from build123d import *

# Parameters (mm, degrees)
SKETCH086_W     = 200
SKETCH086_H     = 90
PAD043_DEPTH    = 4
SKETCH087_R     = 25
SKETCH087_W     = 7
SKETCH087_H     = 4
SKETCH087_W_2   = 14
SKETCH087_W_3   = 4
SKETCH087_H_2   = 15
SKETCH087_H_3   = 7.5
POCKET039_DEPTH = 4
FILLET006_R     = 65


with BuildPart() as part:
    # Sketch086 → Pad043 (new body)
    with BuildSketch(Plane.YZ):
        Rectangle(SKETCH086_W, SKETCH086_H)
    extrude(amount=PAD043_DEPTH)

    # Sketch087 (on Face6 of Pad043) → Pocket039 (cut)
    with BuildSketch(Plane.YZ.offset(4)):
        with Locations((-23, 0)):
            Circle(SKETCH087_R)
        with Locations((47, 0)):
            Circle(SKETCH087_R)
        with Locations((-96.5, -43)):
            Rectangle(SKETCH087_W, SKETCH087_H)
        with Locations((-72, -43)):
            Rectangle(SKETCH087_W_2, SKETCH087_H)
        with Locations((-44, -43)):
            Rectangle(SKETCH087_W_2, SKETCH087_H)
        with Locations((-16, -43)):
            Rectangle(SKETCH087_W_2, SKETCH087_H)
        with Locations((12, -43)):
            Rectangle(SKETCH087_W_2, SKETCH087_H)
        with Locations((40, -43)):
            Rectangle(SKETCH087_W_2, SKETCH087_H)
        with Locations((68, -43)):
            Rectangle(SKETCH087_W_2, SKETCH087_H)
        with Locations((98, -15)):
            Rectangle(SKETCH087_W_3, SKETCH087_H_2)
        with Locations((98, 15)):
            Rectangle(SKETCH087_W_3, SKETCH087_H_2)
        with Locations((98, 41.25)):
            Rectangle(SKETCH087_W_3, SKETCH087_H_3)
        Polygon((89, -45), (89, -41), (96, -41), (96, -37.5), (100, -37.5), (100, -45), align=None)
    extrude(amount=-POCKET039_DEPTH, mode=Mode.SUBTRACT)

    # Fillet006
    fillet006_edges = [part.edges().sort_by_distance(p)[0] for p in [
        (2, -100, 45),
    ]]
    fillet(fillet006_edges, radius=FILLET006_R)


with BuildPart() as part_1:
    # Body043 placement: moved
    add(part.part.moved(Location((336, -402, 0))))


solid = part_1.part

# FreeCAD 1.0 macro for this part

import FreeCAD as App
import Part
import Sketcher


def edges_at(feature, points):
    """Names of the edges that pass closest to the given points."""
    edges = feature.Shape.Edges
    near = lambda p: min(range(len(edges)), key=lambda i: edges[i].distToShape(Part.Vertex(*p))[0])
    return sorted({f"Edge{near(p) + 1}" for p in points})


def add_polygon(sketch, points):
    """Adds a closed chain of lines whose ends are joined by coincident constraints."""
    first, n = sketch.GeometryCount, len(points)
    for a, b in zip(points, points[1:] + points[:1]):
        sketch.addGeometry(Part.LineSegment(App.Vector(*a, 0), App.Vector(*b, 0)), False)
    for i in range(n):
        sketch.addConstraint(Sketcher.Constraint("Coincident", first + i, 2, first + (i + 1) % n, 1))

doc = App.newDocument("Part")
body = doc.addObject("PartDesign::Body", "Body")

sketch1 = doc.addObject("Sketcher::SketchObject", "Sketch")
body.addObject(sketch1)
sketch1.AttachmentSupport = (doc.YZ_Plane, [""])
sketch1.MapMode = "FlatFace"
add_polygon(sketch1, [(-100, 45), (-100, -45), (100, -45), (100, 45)])
sketch1.addConstraint([
    Sketcher.Constraint("Vertical", 0),
    Sketcher.Constraint("Horizontal", 1),
    Sketcher.Constraint("Vertical", 2),
    Sketcher.Constraint("Horizontal", 3),
    Sketcher.Constraint("Symmetric", 0, 2, 2, 2, -1, 1),
    Sketcher.Constraint("DistanceX", 1, 1, 1, 2, 200.0),
    Sketcher.Constraint("DistanceY", 0, 2, 0, 1, 90.0),
])
pad1 = doc.addObject("PartDesign::Pad", "Pad")
body.addObject(pad1)
pad1.Profile = sketch1
pad1.Length = 4

sketch2 = doc.addObject("Sketcher::SketchObject", "Sketch001")
body.addObject(sketch2)
sketch2.AttachmentSupport = (doc.YZ_Plane, [""])
sketch2.MapMode = "FlatFace"
sketch2.AttachmentOffset = App.Placement(App.Vector(0, 0, 4), App.Rotation())
sketch2.addGeometry(Part.Circle(App.Vector(-23, 0, 0), App.Vector(0, 0, 1), 25), False)
sketch2.addGeometry(Part.Circle(App.Vector(47, 0, 0), App.Vector(0, 0, 1), 25), False)
add_polygon(sketch2, [(-100, -41), (-100, -45), (-93, -45), (-93, -41)])
add_polygon(sketch2, [(-79, -41), (-79, -45), (-65, -45), (-65, -41)])
add_polygon(sketch2, [(-51, -41), (-51, -45), (-37, -45), (-37, -41)])
add_polygon(sketch2, [(-23, -41), (-23, -45), (-9, -45), (-9, -41)])
add_polygon(sketch2, [(5, -41), (5, -45), (19, -45), (19, -41)])
add_polygon(sketch2, [(33, -41), (33, -45), (47, -45), (47, -41)])
add_polygon(sketch2, [(61, -41), (61, -45), (75, -45), (75, -41)])
add_polygon(sketch2, [(96, -7.5), (96, -22.5), (100, -22.5), (100, -7.5)])
add_polygon(sketch2, [(96, 22.5), (96, 7.5), (100, 7.5), (100, 22.5)])
add_polygon(sketch2, [(96, 45), (96, 37.5), (100, 37.5), (100, 45)])
add_polygon(sketch2, [(89, -41), (89, -45), (100, -45), (100, -37.5), (96, -37.5), (96, -41)])
sketch2.addConstraint([
    Sketcher.Constraint("Vertical", 2),
    Sketcher.Constraint("Horizontal", 3),
    Sketcher.Constraint("Vertical", 4),
    Sketcher.Constraint("Horizontal", 5),
    Sketcher.Constraint("Vertical", 6),
    Sketcher.Constraint("Horizontal", 7),
    Sketcher.Constraint("Vertical", 8),
    Sketcher.Constraint("Horizontal", 9),
    Sketcher.Constraint("Vertical", 10),
    Sketcher.Constraint("Horizontal", 11),
    Sketcher.Constraint("Vertical", 12),
    Sketcher.Constraint("Horizontal", 13),
    Sketcher.Constraint("Vertical", 14),
    Sketcher.Constraint("Horizontal", 15),
    Sketcher.Constraint("Vertical", 16),
    Sketcher.Constraint("Horizontal", 17),
    Sketcher.Constraint("Vertical", 18),
    Sketcher.Constraint("Horizontal", 19),
    Sketcher.Constraint("Vertical", 20),
    Sketcher.Constraint("Horizontal", 21),
    Sketcher.Constraint("Vertical", 22),
    Sketcher.Constraint("Horizontal", 23),
    Sketcher.Constraint("Vertical", 24),
    Sketcher.Constraint("Horizontal", 25),
    Sketcher.Constraint("Vertical", 26),
    Sketcher.Constraint("Horizontal", 27),
    Sketcher.Constraint("Vertical", 28),
    Sketcher.Constraint("Horizontal", 29),
    Sketcher.Constraint("Vertical", 30),
    Sketcher.Constraint("Horizontal", 31),
    Sketcher.Constraint("Vertical", 32),
    Sketcher.Constraint("Horizontal", 33),
    Sketcher.Constraint("Vertical", 34),
    Sketcher.Constraint("Horizontal", 35),
    Sketcher.Constraint("Vertical", 36),
    Sketcher.Constraint("Horizontal", 37),
    Sketcher.Constraint("Vertical", 38),
    Sketcher.Constraint("Horizontal", 39),
    Sketcher.Constraint("Vertical", 40),
    Sketcher.Constraint("Horizontal", 41),
    Sketcher.Constraint("Vertical", 42),
    Sketcher.Constraint("Horizontal", 43),
    Sketcher.Constraint("Vertical", 44),
    Sketcher.Constraint("Horizontal", 45),
    Sketcher.Constraint("Vertical", 46),
    Sketcher.Constraint("Horizontal", 47),
    Sketcher.Constraint("Equal", 0, 1),
    Sketcher.Constraint("Symmetric", 2, 2, 40, 2, -1, 1),
    Sketcher.Constraint("Symmetric", 2, 2, 43, 2, -2),
    Sketcher.Constraint("Symmetric", 33, 2, 34, 2, -1),
    Sketcher.Constraint("Symmetric", 31, 2, 36, 2, -1),
    Sketcher.Constraint("Symmetric", 38, 2, 45, 2, -1),
    Sketcher.Constraint("PointOnObject", 0, 3, -1),
    Sketcher.Constraint("PointOnObject", 1, 3, -1),
    Sketcher.Constraint("Horizontal", 3, 2, 6, 2),
    Sketcher.Constraint("Horizontal", 5, 2, 8, 2),
    Sketcher.Constraint("Horizontal", 7, 2, 10, 2),
    Sketcher.Constraint("Horizontal", 9, 2, 12, 2),
    Sketcher.Constraint("Horizontal", 11, 2, 14, 2),
    Sketcher.Constraint("Horizontal", 13, 2, 16, 2),
    Sketcher.Constraint("Horizontal", 15, 2, 18, 2),
    Sketcher.Constraint("Horizontal", 17, 2, 20, 2),
    Sketcher.Constraint("Horizontal", 19, 2, 22, 2),
    Sketcher.Constraint("Horizontal", 21, 2, 24, 2),
    Sketcher.Constraint("Horizontal", 23, 2, 26, 2),
    Sketcher.Constraint("Horizontal", 25, 2, 28, 2),
    Sketcher.Constraint("Horizontal", 29, 2, 46, 2),
    Sketcher.Constraint("Vertical", 0, 3, 14, 2),
    Sketcher.Constraint("Vertical", 1, 3, 23, 2),
    Sketcher.Constraint("Vertical", 37, 2, 38, 2),
    Sketcher.Constraint("Vertical", 36, 2, 39, 2),
    Sketcher.Constraint("Equal", 9, 11),
    Sketcher.Constraint("Equal", 13, 15),
    Sketcher.Constraint("Equal", 17, 19),
    Sketcher.Constraint("Equal", 21, 23),
    Sketcher.Constraint("Equal", 25, 27),
    Sketcher.Constraint("Equal", 5, 47),
    Sketcher.Constraint("Equal", 45, 2),
    Sketcher.Constraint("Diameter", 0, 50.0),
    Sketcher.Constraint("DistanceX", 3, 1, 3, 2, 7.0),
    Sketcher.Constraint("DistanceX", 7, 1, 7, 2, 14.0),
    Sketcher.Constraint("DistanceX", 31, 1, 31, 2, 4.0),
    Sketcher.Constraint("DistanceY", 30, 2, 30, 1, 15.0),
    Sketcher.Constraint("DistanceY", 38, 2, 38, 1, 7.5),
    Sketcher.Constraint("DistanceX", 0, 3, -1, 1, 23.0),
    Sketcher.Constraint("DistanceX", -1, 1, 1, 3, 47.0),
    Sketcher.Constraint("DistanceX", 2, 2, -1, 1, 100.0),
    Sketcher.Constraint("DistanceY", 2, 2, -1, 1, 45.0),
    Sketcher.Constraint("DistanceX", 6, 2, -1, 1, 79.0),
    Sketcher.Constraint("DistanceX", 10, 2, -1, 1, 51.0),
    Sketcher.Constraint("DistanceX", -1, 1, 18, 2, 5.0),
    Sketcher.Constraint("DistanceX", -1, 1, 26, 2, 61.0),
    Sketcher.Constraint("DistanceY", 33, 2, 34, 2, 15.0),
])
pocket1 = doc.addObject("PartDesign::Pocket", "Pocket")
body.addObject(pocket1)
pocket1.Profile = sketch2
pocket1.Length = 4
doc.recompute()

fillet = doc.addObject("PartDesign::Fillet", "Fillet")
body.addObject(fillet)
fillet.Base = (pocket1, edges_at(pocket1, [(2, -100, 45)]))
fillet.Radius = 65
body2 = doc.addObject("PartDesign::Body", "Body001")
doc.recompute()

body.Placement = App.Placement(App.Vector(336, -402, 0), App.Rotation(App.Vector(0, 0, 1), 0))
boolean = doc.addObject("PartDesign::Boolean", "Boolean")
body2.addObject(boolean)
boolean.Type = "Fuse"
boolean.addObjects([body])

doc.recompute()
